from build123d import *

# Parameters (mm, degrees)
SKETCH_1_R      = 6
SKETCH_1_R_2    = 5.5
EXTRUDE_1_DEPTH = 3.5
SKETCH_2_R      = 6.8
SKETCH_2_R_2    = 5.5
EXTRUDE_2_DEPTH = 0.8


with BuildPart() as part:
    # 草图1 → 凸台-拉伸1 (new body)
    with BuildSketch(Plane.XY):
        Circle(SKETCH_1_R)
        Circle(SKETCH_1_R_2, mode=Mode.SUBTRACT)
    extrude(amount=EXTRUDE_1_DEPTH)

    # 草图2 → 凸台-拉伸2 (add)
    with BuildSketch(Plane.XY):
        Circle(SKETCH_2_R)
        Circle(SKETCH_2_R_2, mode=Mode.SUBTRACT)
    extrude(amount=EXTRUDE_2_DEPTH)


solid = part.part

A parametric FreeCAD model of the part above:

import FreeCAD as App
import Part
import Sketcher
from FreeCAD import Vector
Q = App.Units.Quantity

doc = App.newDocument("Part")
body = doc.addObject("PartDesign::Body", "Body")

# Sketch on XY plane
sketch1 = body.newObject("Sketcher::SketchObject", "Sketch")
sketch1.AttachmentSupport = (doc.getObject("XY_Plane"), [""])
sketch1.MapMode = "FlatFace"
sketch1.addGeometry(Part.Circle(Vector(0, 0, 0), Vector(0, 0, 1), 6), False)
sketch1.addGeometry(Part.Circle(Vector(0, 0, 0), Vector(0, 0, 1), 5.5), False)
sketch1.addConstraint(Sketcher.Constraint("Coincident", 0, 3, -1, 1))
sketch1.addConstraint(Sketcher.Constraint("Coincident", 1, 3, -1, 1))
sketch1.addConstraint(Sketcher.Constraint("Diameter", 0, Q("12 mm")))
sketch1.addConstraint(Sketcher.Constraint("Diameter", 1, Q("11 mm")))
pad1 = body.newObject("PartDesign::Pad", "Pad")
pad1.Profile = sketch1
pad1.Length = 3.5

# Sketch on XY plane
sketch2 = body.newObject("Sketcher::SketchObject", "Sketch001")
sketch2.AttachmentSupport = (doc.getObject("XY_Plane"), [""])
sketch2.MapMode = "FlatFace"
sketch2.addGeometry(Part.Circle(Vector(0, 0, 0), Vector(0, 0, 1), 6.8), False)
sketch2.addGeometry(Part.Circle(Vector(0, 0, 0), Vector(0, 0, 1), 5.5), False)
sketch2.addConstraint(Sketcher.Constraint("Coincident", 0, 3, -1, 1))
sketch2.addConstraint(Sketcher.Constraint("Coincident", 1, 3, -1, 1))
sketch2.addConstraint(Sketcher.Constraint("Diameter", 1, Q("11 mm")))
sketch2.addConstraint(Sketcher.Constraint("Diameter", 0, Q("13.6 mm")))
pad2 = body.newObject("PartDesign::Pad", "Pad001")
pad2.Profile = sketch2
pad2.Length = 0.8

doc.recompute()
